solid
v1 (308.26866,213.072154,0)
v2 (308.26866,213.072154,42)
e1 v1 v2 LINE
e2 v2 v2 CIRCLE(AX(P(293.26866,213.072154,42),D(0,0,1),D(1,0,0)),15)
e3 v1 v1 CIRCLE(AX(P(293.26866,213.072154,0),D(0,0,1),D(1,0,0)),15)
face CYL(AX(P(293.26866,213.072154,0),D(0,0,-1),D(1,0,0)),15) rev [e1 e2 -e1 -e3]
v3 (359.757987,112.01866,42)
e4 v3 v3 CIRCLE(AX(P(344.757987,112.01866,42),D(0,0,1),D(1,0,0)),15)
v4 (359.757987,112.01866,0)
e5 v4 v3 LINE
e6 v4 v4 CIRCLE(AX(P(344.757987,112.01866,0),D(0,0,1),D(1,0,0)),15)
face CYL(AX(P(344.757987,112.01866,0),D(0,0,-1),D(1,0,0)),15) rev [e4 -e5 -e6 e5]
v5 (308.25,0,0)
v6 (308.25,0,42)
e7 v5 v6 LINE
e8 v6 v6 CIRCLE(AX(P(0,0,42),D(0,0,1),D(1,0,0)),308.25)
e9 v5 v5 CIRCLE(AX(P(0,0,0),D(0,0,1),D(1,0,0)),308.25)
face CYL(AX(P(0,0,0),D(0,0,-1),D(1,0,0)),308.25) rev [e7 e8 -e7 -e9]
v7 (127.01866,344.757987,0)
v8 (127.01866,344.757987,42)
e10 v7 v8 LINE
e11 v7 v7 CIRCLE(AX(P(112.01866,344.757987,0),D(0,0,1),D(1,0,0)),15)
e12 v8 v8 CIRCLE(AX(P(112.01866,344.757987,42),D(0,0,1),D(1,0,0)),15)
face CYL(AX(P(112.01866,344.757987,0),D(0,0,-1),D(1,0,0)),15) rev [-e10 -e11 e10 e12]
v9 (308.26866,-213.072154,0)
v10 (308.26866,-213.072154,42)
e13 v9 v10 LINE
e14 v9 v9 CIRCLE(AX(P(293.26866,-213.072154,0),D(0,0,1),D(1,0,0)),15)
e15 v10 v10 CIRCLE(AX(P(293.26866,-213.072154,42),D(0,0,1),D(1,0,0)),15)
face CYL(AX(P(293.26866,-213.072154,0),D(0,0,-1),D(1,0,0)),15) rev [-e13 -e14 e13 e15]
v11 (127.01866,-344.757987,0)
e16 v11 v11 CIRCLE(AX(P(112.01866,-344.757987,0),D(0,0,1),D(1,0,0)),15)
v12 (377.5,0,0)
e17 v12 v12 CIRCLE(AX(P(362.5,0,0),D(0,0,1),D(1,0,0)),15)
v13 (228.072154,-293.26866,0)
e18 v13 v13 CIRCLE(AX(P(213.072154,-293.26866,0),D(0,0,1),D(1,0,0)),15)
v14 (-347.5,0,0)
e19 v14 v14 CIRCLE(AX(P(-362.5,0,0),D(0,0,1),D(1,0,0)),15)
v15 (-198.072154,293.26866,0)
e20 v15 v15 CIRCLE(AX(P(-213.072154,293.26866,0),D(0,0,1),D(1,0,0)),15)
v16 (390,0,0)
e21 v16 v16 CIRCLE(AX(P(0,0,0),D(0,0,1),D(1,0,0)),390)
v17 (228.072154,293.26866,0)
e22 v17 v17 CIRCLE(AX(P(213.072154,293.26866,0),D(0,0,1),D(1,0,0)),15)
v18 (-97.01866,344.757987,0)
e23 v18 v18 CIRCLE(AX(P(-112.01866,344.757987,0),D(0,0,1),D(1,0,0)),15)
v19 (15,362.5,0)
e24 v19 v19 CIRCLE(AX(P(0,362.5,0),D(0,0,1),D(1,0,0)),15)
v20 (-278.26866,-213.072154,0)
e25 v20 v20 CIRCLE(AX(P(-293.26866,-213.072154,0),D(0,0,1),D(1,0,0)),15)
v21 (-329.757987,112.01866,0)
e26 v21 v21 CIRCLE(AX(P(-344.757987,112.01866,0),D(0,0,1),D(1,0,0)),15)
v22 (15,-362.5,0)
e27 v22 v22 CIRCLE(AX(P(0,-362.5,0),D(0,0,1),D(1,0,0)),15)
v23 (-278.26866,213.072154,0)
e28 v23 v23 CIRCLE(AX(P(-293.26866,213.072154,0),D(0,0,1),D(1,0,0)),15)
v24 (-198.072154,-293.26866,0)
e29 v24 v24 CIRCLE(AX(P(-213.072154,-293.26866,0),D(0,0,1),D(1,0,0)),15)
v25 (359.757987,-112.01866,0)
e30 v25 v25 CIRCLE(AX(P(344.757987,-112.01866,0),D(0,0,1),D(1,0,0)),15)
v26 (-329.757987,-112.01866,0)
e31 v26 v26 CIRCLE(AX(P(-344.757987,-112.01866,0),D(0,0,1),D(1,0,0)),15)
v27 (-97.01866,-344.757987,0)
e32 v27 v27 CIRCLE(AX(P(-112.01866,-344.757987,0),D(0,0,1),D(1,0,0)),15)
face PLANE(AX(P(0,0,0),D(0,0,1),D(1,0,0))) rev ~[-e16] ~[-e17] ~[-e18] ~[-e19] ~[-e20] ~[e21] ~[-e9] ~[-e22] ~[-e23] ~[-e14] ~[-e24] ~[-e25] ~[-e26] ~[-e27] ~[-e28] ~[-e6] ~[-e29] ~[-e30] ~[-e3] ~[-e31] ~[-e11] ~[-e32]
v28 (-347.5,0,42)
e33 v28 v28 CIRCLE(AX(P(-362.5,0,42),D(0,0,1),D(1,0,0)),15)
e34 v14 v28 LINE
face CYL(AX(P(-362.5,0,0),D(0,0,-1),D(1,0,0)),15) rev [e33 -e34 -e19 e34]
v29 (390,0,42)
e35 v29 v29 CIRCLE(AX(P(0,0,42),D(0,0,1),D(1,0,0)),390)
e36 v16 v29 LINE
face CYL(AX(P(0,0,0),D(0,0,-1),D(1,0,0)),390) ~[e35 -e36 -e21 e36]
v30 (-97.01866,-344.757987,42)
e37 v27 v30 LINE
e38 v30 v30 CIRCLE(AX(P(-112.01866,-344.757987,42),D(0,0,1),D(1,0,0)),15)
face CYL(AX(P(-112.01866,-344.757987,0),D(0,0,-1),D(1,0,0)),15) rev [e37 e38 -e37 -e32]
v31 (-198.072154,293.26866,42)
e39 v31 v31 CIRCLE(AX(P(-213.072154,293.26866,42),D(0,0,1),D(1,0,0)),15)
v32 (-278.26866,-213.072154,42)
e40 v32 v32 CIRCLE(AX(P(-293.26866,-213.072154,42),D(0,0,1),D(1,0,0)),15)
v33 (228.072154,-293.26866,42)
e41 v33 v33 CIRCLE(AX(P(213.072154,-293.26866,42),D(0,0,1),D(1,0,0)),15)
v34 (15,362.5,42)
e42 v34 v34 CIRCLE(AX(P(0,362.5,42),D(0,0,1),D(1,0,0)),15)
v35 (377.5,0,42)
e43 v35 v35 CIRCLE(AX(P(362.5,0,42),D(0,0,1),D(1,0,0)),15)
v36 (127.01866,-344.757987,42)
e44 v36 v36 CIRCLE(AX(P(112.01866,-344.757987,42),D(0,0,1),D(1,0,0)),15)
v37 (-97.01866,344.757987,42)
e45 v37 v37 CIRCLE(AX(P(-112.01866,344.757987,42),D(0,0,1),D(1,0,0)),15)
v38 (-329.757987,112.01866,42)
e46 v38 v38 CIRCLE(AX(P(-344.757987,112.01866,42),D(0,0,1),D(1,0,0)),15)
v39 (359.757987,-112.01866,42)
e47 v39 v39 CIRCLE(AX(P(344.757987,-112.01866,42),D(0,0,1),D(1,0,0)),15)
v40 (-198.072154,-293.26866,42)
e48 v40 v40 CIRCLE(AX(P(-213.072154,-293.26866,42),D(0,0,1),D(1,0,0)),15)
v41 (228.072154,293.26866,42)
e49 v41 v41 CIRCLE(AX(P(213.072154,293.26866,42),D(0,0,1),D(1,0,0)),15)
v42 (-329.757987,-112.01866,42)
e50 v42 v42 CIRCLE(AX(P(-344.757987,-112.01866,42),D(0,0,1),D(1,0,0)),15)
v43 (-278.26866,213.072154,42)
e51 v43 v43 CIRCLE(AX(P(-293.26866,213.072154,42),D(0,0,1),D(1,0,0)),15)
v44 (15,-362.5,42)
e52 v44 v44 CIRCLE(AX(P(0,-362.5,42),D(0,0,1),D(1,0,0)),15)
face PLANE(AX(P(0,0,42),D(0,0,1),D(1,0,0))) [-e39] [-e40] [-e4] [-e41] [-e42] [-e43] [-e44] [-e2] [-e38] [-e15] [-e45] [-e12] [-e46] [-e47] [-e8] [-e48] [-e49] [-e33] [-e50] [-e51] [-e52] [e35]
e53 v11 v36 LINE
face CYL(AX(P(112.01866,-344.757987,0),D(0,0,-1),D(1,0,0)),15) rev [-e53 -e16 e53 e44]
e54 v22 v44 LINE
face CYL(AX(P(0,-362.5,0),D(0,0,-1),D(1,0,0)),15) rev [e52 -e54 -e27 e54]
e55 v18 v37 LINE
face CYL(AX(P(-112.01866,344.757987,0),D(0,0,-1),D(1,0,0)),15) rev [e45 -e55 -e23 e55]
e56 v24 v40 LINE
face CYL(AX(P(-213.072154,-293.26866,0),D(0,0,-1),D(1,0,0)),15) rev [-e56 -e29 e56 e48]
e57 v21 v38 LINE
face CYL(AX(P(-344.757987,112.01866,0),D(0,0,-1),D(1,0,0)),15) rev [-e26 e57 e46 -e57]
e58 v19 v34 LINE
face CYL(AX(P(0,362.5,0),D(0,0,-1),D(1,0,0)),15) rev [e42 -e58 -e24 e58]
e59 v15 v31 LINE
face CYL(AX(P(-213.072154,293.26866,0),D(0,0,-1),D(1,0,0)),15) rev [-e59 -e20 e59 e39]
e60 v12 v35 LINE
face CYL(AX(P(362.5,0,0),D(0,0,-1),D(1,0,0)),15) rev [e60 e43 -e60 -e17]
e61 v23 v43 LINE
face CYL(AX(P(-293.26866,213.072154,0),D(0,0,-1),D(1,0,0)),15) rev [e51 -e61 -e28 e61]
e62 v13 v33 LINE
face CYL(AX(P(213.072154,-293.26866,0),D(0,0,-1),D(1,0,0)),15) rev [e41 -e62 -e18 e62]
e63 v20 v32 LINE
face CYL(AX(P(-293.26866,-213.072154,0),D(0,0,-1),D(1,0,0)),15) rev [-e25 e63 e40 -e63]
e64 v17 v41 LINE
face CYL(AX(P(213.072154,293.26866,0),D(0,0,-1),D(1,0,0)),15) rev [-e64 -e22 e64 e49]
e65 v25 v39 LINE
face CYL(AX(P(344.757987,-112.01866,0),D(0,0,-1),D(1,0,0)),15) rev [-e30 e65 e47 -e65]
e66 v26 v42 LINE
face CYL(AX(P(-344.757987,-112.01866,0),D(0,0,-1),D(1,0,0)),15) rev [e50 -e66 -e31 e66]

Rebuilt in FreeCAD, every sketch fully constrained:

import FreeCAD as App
import Part
import Sketcher
Q = App.Units.Quantity

doc = App.newDocument("Part")
params = doc.addObject("Spreadsheet::Sheet", "Params")
for row, (alias, value) in enumerate([
    ("sketch1_diameter", "780 mm"),
    ("sketch1_diameter2", "30 mm"),
    ("sketch1_diameter3", "616.5 mm"),
    ("pad1_length", "42 mm"),
], start=1):
    params.set(f"A{row}", alias)
    params.set(f"B{row}", "=" + value)
    params.setAlias(f"B{row}", alias)

body = doc.addObject("PartDesign::Body", "Body")

sketch1 = body.newObject("Sketcher::SketchObject", "Sketch")
sketch1.AttachmentSupport = (doc.getObject("XY_Plane"), [""])
sketch1.MapMode = "FlatFace"
sketch1.addGeometry([
    Part.Circle(App.Vector(0, 0, 0), App.Vector(0, 0, 1), 390),
    Part.Circle(App.Vector(-213, -293, 0), App.Vector(0, 0, 1), 15),
    Part.Circle(App.Vector(-293, -213, 0), App.Vector(0, 0, 1), 15),
    Part.Circle(App.Vector(-112, -345, 0), App.Vector(0, 0, 1), 15),
    Part.Circle(App.Vector(-345, -112, 0), App.Vector(0, 0, 1), 15),
    Part.Circle(App.Vector(0, -362, 0), App.Vector(0, 0, 1), 15),
    Part.Circle(App.Vector(112, -345, 0), App.Vector(0, 0, 1), 15),
    Part.Circle(App.Vector(213, -293, 0), App.Vector(0, 0, 1), 15),
    Part.Circle(App.Vector(293, -213, 0), App.Vector(0, 0, 1), 15),
    Part.Circle(App.Vector(345, -112, 0), App.Vector(0, 0, 1), 15),
    Part.Circle(App.Vector(-362, 0, 0), App.Vector(0, 0, 1), 15),
    Part.Circle(App.Vector(-345, 112, 0), App.Vector(0, 0, 1), 15),
    Part.Circle(App.Vector(-293, 213, 0), App.Vector(0, 0, 1), 15),
    Part.Circle(App.Vector(-213, 293, 0), App.Vector(0, 0, 1), 15),
    Part.Circle(App.Vector(-112, 345, 0), App.Vector(0, 0, 1), 15),
    Part.Circle(App.Vector(0, 0, 0), App.Vector(0, 0, 1), 308),
    Part.Circle(App.Vector(362, 0, 0), App.Vector(0, 0, 1), 15),
    Part.Circle(App.Vector(345, 112, 0), App.Vector(0, 0, 1), 15),
    Part.Circle(App.Vector(0, 362, 0), App.Vector(0, 0, 1), 15),
    Part.Circle(App.Vector(112, 345, 0), App.Vector(0, 0, 1), 15),
    Part.Circle(App.Vector(293, 213, 0), App.Vector(0, 0, 1), 15),
    Part.Circle(App.Vector(213, 293, 0), App.Vector(0, 0, 1), 15),
], False)
sketch1.addConstraint([
    Sketcher.Constraint("Coincident", 0, 3, -1, 1),
    Sketcher.Constraint("Coincident", 15, 3, -1, 1),
    Sketcher.Constraint("Equal", 1, 2),
    Sketcher.Constraint("Equal", 2, 3),
    Sketcher.Constraint("Equal", 3, 4),
    Sketcher.Constraint("Equal", 4, 5),
    Sketcher.Constraint("Equal", 5, 6),
    Sketcher.Constraint("Equal", 6, 7),
    Sketcher.Constraint("Equal", 7, 8),
    Sketcher.Constraint("Equal", 8, 9),
    Sketcher.Constraint("Equal", 9, 10),
    Sketcher.Constraint("Equal", 10, 11),
    Sketcher.Constraint("Equal", 11, 12),
    Sketcher.Constraint("Equal", 12, 13),
    Sketcher.Constraint("Equal", 13, 14),
    Sketcher.Constraint("Equal", 14, 16),
    Sketcher.Constraint("Equal", 16, 17),
    Sketcher.Constraint("Equal", 17, 18),
    Sketcher.Constraint("Equal", 18, 19),
    Sketcher.Constraint("Equal", 19, 20),
    Sketcher.Constraint("Equal", 20, 21),
    Sketcher.Constraint("Symmetric", 9, 3, 11, 3, -1, 1),
    Sketcher.Constraint("Symmetric", 8, 3, 12, 3, -1, 1),
    Sketcher.Constraint("Symmetric", 7, 3, 13, 3, -1, 1),
    Sketcher.Constraint("Symmetric", 6, 3, 14, 3, -1, 1),
    Sketcher.Constraint("Symmetric", 10, 3, 16, 3, -1, 1),
    Sketcher.Constraint("Symmetric", 4, 3, 17, 3, -1, 1),
    Sketcher.Constraint("Symmetric", 5, 3, 18, 3, -1, 1),
    Sketcher.Constraint("Symmetric", 3, 3, 19, 3, -1, 1),
    Sketcher.Constraint("Symmetric", 2, 3, 20, 3, -1, 1),
    Sketcher.Constraint("Symmetric", 1, 3, 21, 3, -1, 1),
    Sketcher.Constraint("Symmetric", 3, 3, 6, 3, -2),
    Sketcher.Constraint("Symmetric", 1, 3, 7, 3, -2),
    Sketcher.Constraint("Symmetric", 2, 3, 8, 3, -2),
    Sketcher.Constraint("Symmetric", 4, 3, 9, 3, -2),
    Sketcher.Constraint("PointOnObject", 5, 3, -2),
    Sketcher.Constraint("PointOnObject", 10, 3, -1),
    Sketcher.Constraint("Diameter", 0, Q("780 mm")),
    Sketcher.Constraint("Diameter", 1, Q("30 mm")),
    Sketcher.Constraint("Diameter", 15, Q("616.5 mm")),
    Sketcher.Constraint("DistanceY", 5, 3, -1, 1, Q("362.5 mm")),
    Sketcher.Constraint("DistanceX", 10, 3, -1, 1, Q("362.5 mm")),
    Sketcher.Constraint("DistanceX", 2, 3, 3, 3, Q("181.25 mm")),
    Sketcher.Constraint("DistanceY", 1, 3, 4, 3, Q("181.25 mm")),
    Sketcher.Constraint("DistanceY", 1, 3, -1, 1, Q("293.26866 mm")),
    Sketcher.Constraint("DistanceX", 2, 3, -1, 1, Q("293.26866 mm")),
    Sketcher.Constraint("DistanceX", 1, 3, 7, 3, Q("426.144308 mm")),
    Sketcher.Constraint("DistanceY", 2, 3, 12, 3, Q("426.144308 mm")),
    Sketcher.Constraint("DistanceY", 3, 3, -1, 1, Q("344.757987 mm")),
    Sketcher.Constraint("DistanceX", 4, 3, -1, 1, Q("344.757987 mm")),
])
sketch1.setExpression("Constraints[37]", "Params.sketch1_diameter")
sketch1.setExpression("Constraints[38]", "Params.sketch1_diameter2")
sketch1.setExpression("Constraints[39]", "Params.sketch1_diameter3")
pad1 = body.newObject("PartDesign::Pad", "Pad")
pad1.Profile = sketch1
pad1.setExpression("Length", "Params.pad1_length")

doc.recompute()
